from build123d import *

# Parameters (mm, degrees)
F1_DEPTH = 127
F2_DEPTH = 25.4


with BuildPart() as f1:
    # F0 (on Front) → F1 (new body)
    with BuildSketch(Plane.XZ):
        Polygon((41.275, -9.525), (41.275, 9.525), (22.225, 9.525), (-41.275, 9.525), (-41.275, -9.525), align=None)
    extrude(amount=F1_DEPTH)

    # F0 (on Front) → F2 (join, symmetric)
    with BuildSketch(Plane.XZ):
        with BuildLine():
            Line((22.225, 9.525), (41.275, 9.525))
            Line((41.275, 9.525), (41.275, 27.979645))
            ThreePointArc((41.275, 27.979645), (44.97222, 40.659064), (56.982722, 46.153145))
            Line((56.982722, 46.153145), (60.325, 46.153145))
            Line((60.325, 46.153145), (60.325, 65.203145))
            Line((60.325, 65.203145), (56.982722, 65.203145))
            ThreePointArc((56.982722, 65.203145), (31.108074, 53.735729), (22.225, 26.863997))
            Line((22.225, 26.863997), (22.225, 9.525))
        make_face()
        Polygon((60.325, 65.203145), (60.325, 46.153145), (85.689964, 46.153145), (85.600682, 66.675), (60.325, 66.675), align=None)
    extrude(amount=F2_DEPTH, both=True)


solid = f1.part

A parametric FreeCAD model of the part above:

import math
import FreeCAD as App
import Part
import Sketcher
Q = App.Units.Quantity


def add_polygon(sketch, points):
    """Adds a closed chain of lines whose ends are joined by coincident constraints."""
    first, n = sketch.GeometryCount, len(points)
    for a, b in zip(points, points[1:] + points[:1]):
        sketch.addGeometry(Part.LineSegment(App.Vector(*a, 0), App.Vector(*b, 0)), False)
    for i in range(n):
        sketch.addConstraint(Sketcher.Constraint("Coincident", first + i, 2, first + (i + 1) % n, 1))

doc = App.newDocument("Part")
params = doc.addObject("Spreadsheet::Sheet", "Params")
for row, (alias, value) in enumerate([
    ("sketch1_width", "3.25 in"),
    ("sketch1_height", "0.75 in"),
    ("pad1_length", "5 in"),
    ("sketch2_radius", "0.625 in"),
    ("sketch2_radius2", "1.375 in"),
    ("sketch2_width", "0.75 in"),
    ("pad2_length", "2 in"),
], start=1):
    params.set(f"A{row}", alias)
    params.set(f"B{row}", "=" + value)
    params.setAlias(f"B{row}", alias)

body = doc.addObject("PartDesign::Body", "Body")

sketch1 = doc.addObject("Sketcher::SketchObject", "Sketch")
body.addObject(sketch1)
sketch1.AttachmentSupport = (doc.XZ_Plane, [""])
sketch1.MapMode = "FlatFace"
add_polygon(sketch1, [(41, -10), (41, 10), (-41, 10), (-41, -10)])
sketch1.addConstraint([
    Sketcher.Constraint("Vertical", 0),
    Sketcher.Constraint("Horizontal", 1),
    Sketcher.Constraint("Vertical", 2),
    Sketcher.Constraint("Horizontal", 3),
    Sketcher.Constraint("Symmetric", 0, 2, 2, 2, -1, 1),
    Sketcher.Constraint("DistanceX", 1, 2, 1, 1, Q("3.25 in")),
    Sketcher.Constraint("DistanceY", 0, 1, 0, 2, Q("0.75 in")),
])
sketch1.setExpression("Constraints[9]", "Params.sketch1_width")
sketch1.setExpression("Constraints[10]", "Params.sketch1_height")
pad1 = doc.addObject("PartDesign::Pad", "Pad")
body.addObject(pad1)
pad1.Profile = sketch1
pad1.setExpression("Length", "Params.pad1_length")

sketch2 = doc.addObject("Sketcher::SketchObject", "Sketch001")
body.addObject(sketch2)
sketch2.AttachmentSupport = (doc.XZ_Plane, [""])
sketch2.MapMode = "FlatFace"
sketch2.addGeometry([
    Part.LineSegment(App.Vector(22.2, 9.5, 0), App.Vector(41.3, 9.5, 0)),
    Part.LineSegment(App.Vector(41.3, 9.5, 0), App.Vector(41.3, 28, 0)),
    Part.ArcOfCircle(Part.Circle(App.Vector(57, 30.3, 0), App.Vector(0, 0, 1), 15.9), math.radians(90), math.radians(188)),
    Part.LineSegment(App.Vector(57, 46.2, 0), App.Vector(85.7, 46.2, 0)),
    Part.LineSegment(App.Vector(85.7, 46.2, 0), App.Vector(85.6, 66.7, 0)),
    Part.LineSegment(App.Vector(85.6, 66.7, 0), App.Vector(60.3, 66.7, 0)),
    Part.LineSegment(App.Vector(60.3, 66.7, 0), App.Vector(60.3, 65.2, 0)),
    Part.LineSegment(App.Vector(60.3, 65.2, 0), App.Vector(57, 65.2, 0)),
    Part.ArcOfCircle(Part.Circle(App.Vector(57, 30.3, 0), App.Vector(0, 0, 1), 34.9), math.radians(90), math.radians(186)),
    Part.LineSegment(App.Vector(22.2, 26.9, 0), App.Vector(22.2, 9.5, 0)),
], False)
sketch2.addConstraint([
    Sketcher.Constraint("Coincident", 0, 2, 1, 1),
    Sketcher.Constraint("Coincident", 1, 2, 2, 2),
    Sketcher.Constraint("Tangent", 2, 1, 3, 1),
    Sketcher.Constraint("Coincident", 3, 2, 4, 1),
    Sketcher.Constraint("Coincident", 4, 2, 5, 1),
    Sketcher.Constraint("Coincident", 5, 2, 6, 1),
    Sketcher.Constraint("Coincident", 6, 2, 7, 1),
    Sketcher.Constraint("Tangent", 7, 2, 8, 1),
    Sketcher.Constraint("Coincident", 8, 2, 9, 1),
    Sketcher.Constraint("Coincident", 9, 2, 0, 1),
    Sketcher.Constraint("Horizontal", 0),
    Sketcher.Constraint("Vertical", 1),
    Sketcher.Constraint("Horizontal", 3),
    Sketcher.Constraint("Horizontal", 5),
    Sketcher.Constraint("Vertical", 6),
    Sketcher.Constraint("Horizontal", 7),
    Sketcher.Constraint("Vertical", 9),
    Sketcher.Constraint("Coincident", 8, 3, 2, 3),
    Sketcher.Constraint("Radius", 2, Q("0.625 in")),
    Sketcher.Constraint("Radius", 8, Q("1.375 in")),
    Sketcher.Constraint("DistanceX", 0, 1, 0, 2, Q("0.75 in")),
    Sketcher.Constraint("DistanceX", -1, 1, 0, 2, Q("1.625 in")),
    Sketcher.Constraint("DistanceY", -1, 1, 0, 2, Q("0.375 in")),
    Sketcher.Constraint("DistanceY", -1, 1, 4, 2, Q("2.625 in")),
    Sketcher.Constraint("DistanceX", -1, 1, 5, 2, Q("2.375 in")),
    Sketcher.Constraint("DistanceX", 7, 2, 7, 1, 3.342278),
    Sketcher.Constraint("Distance", 4, 20.522049),
    Sketcher.Constraint("DistanceX", 3, 1, 3, 2, 28.707242),
    Sketcher.Constraint("DistanceX", 5, 2, 5, 1, 25.275682),
])
sketch2.setExpression("Constraints[18]", "Params.sketch2_radius")
sketch2.setExpression("Constraints[19]", "Params.sketch2_radius2")
sketch2.setExpression("Constraints[20]", "Params.sketch2_width")
pad2 = doc.addObject("PartDesign::Pad", "Pad001")
body.addObject(pad2)
pad2.Profile = sketch2
pad2.setExpression("Length", "Params.pad2_length")
pad2.Midplane = True

doc.recompute()
